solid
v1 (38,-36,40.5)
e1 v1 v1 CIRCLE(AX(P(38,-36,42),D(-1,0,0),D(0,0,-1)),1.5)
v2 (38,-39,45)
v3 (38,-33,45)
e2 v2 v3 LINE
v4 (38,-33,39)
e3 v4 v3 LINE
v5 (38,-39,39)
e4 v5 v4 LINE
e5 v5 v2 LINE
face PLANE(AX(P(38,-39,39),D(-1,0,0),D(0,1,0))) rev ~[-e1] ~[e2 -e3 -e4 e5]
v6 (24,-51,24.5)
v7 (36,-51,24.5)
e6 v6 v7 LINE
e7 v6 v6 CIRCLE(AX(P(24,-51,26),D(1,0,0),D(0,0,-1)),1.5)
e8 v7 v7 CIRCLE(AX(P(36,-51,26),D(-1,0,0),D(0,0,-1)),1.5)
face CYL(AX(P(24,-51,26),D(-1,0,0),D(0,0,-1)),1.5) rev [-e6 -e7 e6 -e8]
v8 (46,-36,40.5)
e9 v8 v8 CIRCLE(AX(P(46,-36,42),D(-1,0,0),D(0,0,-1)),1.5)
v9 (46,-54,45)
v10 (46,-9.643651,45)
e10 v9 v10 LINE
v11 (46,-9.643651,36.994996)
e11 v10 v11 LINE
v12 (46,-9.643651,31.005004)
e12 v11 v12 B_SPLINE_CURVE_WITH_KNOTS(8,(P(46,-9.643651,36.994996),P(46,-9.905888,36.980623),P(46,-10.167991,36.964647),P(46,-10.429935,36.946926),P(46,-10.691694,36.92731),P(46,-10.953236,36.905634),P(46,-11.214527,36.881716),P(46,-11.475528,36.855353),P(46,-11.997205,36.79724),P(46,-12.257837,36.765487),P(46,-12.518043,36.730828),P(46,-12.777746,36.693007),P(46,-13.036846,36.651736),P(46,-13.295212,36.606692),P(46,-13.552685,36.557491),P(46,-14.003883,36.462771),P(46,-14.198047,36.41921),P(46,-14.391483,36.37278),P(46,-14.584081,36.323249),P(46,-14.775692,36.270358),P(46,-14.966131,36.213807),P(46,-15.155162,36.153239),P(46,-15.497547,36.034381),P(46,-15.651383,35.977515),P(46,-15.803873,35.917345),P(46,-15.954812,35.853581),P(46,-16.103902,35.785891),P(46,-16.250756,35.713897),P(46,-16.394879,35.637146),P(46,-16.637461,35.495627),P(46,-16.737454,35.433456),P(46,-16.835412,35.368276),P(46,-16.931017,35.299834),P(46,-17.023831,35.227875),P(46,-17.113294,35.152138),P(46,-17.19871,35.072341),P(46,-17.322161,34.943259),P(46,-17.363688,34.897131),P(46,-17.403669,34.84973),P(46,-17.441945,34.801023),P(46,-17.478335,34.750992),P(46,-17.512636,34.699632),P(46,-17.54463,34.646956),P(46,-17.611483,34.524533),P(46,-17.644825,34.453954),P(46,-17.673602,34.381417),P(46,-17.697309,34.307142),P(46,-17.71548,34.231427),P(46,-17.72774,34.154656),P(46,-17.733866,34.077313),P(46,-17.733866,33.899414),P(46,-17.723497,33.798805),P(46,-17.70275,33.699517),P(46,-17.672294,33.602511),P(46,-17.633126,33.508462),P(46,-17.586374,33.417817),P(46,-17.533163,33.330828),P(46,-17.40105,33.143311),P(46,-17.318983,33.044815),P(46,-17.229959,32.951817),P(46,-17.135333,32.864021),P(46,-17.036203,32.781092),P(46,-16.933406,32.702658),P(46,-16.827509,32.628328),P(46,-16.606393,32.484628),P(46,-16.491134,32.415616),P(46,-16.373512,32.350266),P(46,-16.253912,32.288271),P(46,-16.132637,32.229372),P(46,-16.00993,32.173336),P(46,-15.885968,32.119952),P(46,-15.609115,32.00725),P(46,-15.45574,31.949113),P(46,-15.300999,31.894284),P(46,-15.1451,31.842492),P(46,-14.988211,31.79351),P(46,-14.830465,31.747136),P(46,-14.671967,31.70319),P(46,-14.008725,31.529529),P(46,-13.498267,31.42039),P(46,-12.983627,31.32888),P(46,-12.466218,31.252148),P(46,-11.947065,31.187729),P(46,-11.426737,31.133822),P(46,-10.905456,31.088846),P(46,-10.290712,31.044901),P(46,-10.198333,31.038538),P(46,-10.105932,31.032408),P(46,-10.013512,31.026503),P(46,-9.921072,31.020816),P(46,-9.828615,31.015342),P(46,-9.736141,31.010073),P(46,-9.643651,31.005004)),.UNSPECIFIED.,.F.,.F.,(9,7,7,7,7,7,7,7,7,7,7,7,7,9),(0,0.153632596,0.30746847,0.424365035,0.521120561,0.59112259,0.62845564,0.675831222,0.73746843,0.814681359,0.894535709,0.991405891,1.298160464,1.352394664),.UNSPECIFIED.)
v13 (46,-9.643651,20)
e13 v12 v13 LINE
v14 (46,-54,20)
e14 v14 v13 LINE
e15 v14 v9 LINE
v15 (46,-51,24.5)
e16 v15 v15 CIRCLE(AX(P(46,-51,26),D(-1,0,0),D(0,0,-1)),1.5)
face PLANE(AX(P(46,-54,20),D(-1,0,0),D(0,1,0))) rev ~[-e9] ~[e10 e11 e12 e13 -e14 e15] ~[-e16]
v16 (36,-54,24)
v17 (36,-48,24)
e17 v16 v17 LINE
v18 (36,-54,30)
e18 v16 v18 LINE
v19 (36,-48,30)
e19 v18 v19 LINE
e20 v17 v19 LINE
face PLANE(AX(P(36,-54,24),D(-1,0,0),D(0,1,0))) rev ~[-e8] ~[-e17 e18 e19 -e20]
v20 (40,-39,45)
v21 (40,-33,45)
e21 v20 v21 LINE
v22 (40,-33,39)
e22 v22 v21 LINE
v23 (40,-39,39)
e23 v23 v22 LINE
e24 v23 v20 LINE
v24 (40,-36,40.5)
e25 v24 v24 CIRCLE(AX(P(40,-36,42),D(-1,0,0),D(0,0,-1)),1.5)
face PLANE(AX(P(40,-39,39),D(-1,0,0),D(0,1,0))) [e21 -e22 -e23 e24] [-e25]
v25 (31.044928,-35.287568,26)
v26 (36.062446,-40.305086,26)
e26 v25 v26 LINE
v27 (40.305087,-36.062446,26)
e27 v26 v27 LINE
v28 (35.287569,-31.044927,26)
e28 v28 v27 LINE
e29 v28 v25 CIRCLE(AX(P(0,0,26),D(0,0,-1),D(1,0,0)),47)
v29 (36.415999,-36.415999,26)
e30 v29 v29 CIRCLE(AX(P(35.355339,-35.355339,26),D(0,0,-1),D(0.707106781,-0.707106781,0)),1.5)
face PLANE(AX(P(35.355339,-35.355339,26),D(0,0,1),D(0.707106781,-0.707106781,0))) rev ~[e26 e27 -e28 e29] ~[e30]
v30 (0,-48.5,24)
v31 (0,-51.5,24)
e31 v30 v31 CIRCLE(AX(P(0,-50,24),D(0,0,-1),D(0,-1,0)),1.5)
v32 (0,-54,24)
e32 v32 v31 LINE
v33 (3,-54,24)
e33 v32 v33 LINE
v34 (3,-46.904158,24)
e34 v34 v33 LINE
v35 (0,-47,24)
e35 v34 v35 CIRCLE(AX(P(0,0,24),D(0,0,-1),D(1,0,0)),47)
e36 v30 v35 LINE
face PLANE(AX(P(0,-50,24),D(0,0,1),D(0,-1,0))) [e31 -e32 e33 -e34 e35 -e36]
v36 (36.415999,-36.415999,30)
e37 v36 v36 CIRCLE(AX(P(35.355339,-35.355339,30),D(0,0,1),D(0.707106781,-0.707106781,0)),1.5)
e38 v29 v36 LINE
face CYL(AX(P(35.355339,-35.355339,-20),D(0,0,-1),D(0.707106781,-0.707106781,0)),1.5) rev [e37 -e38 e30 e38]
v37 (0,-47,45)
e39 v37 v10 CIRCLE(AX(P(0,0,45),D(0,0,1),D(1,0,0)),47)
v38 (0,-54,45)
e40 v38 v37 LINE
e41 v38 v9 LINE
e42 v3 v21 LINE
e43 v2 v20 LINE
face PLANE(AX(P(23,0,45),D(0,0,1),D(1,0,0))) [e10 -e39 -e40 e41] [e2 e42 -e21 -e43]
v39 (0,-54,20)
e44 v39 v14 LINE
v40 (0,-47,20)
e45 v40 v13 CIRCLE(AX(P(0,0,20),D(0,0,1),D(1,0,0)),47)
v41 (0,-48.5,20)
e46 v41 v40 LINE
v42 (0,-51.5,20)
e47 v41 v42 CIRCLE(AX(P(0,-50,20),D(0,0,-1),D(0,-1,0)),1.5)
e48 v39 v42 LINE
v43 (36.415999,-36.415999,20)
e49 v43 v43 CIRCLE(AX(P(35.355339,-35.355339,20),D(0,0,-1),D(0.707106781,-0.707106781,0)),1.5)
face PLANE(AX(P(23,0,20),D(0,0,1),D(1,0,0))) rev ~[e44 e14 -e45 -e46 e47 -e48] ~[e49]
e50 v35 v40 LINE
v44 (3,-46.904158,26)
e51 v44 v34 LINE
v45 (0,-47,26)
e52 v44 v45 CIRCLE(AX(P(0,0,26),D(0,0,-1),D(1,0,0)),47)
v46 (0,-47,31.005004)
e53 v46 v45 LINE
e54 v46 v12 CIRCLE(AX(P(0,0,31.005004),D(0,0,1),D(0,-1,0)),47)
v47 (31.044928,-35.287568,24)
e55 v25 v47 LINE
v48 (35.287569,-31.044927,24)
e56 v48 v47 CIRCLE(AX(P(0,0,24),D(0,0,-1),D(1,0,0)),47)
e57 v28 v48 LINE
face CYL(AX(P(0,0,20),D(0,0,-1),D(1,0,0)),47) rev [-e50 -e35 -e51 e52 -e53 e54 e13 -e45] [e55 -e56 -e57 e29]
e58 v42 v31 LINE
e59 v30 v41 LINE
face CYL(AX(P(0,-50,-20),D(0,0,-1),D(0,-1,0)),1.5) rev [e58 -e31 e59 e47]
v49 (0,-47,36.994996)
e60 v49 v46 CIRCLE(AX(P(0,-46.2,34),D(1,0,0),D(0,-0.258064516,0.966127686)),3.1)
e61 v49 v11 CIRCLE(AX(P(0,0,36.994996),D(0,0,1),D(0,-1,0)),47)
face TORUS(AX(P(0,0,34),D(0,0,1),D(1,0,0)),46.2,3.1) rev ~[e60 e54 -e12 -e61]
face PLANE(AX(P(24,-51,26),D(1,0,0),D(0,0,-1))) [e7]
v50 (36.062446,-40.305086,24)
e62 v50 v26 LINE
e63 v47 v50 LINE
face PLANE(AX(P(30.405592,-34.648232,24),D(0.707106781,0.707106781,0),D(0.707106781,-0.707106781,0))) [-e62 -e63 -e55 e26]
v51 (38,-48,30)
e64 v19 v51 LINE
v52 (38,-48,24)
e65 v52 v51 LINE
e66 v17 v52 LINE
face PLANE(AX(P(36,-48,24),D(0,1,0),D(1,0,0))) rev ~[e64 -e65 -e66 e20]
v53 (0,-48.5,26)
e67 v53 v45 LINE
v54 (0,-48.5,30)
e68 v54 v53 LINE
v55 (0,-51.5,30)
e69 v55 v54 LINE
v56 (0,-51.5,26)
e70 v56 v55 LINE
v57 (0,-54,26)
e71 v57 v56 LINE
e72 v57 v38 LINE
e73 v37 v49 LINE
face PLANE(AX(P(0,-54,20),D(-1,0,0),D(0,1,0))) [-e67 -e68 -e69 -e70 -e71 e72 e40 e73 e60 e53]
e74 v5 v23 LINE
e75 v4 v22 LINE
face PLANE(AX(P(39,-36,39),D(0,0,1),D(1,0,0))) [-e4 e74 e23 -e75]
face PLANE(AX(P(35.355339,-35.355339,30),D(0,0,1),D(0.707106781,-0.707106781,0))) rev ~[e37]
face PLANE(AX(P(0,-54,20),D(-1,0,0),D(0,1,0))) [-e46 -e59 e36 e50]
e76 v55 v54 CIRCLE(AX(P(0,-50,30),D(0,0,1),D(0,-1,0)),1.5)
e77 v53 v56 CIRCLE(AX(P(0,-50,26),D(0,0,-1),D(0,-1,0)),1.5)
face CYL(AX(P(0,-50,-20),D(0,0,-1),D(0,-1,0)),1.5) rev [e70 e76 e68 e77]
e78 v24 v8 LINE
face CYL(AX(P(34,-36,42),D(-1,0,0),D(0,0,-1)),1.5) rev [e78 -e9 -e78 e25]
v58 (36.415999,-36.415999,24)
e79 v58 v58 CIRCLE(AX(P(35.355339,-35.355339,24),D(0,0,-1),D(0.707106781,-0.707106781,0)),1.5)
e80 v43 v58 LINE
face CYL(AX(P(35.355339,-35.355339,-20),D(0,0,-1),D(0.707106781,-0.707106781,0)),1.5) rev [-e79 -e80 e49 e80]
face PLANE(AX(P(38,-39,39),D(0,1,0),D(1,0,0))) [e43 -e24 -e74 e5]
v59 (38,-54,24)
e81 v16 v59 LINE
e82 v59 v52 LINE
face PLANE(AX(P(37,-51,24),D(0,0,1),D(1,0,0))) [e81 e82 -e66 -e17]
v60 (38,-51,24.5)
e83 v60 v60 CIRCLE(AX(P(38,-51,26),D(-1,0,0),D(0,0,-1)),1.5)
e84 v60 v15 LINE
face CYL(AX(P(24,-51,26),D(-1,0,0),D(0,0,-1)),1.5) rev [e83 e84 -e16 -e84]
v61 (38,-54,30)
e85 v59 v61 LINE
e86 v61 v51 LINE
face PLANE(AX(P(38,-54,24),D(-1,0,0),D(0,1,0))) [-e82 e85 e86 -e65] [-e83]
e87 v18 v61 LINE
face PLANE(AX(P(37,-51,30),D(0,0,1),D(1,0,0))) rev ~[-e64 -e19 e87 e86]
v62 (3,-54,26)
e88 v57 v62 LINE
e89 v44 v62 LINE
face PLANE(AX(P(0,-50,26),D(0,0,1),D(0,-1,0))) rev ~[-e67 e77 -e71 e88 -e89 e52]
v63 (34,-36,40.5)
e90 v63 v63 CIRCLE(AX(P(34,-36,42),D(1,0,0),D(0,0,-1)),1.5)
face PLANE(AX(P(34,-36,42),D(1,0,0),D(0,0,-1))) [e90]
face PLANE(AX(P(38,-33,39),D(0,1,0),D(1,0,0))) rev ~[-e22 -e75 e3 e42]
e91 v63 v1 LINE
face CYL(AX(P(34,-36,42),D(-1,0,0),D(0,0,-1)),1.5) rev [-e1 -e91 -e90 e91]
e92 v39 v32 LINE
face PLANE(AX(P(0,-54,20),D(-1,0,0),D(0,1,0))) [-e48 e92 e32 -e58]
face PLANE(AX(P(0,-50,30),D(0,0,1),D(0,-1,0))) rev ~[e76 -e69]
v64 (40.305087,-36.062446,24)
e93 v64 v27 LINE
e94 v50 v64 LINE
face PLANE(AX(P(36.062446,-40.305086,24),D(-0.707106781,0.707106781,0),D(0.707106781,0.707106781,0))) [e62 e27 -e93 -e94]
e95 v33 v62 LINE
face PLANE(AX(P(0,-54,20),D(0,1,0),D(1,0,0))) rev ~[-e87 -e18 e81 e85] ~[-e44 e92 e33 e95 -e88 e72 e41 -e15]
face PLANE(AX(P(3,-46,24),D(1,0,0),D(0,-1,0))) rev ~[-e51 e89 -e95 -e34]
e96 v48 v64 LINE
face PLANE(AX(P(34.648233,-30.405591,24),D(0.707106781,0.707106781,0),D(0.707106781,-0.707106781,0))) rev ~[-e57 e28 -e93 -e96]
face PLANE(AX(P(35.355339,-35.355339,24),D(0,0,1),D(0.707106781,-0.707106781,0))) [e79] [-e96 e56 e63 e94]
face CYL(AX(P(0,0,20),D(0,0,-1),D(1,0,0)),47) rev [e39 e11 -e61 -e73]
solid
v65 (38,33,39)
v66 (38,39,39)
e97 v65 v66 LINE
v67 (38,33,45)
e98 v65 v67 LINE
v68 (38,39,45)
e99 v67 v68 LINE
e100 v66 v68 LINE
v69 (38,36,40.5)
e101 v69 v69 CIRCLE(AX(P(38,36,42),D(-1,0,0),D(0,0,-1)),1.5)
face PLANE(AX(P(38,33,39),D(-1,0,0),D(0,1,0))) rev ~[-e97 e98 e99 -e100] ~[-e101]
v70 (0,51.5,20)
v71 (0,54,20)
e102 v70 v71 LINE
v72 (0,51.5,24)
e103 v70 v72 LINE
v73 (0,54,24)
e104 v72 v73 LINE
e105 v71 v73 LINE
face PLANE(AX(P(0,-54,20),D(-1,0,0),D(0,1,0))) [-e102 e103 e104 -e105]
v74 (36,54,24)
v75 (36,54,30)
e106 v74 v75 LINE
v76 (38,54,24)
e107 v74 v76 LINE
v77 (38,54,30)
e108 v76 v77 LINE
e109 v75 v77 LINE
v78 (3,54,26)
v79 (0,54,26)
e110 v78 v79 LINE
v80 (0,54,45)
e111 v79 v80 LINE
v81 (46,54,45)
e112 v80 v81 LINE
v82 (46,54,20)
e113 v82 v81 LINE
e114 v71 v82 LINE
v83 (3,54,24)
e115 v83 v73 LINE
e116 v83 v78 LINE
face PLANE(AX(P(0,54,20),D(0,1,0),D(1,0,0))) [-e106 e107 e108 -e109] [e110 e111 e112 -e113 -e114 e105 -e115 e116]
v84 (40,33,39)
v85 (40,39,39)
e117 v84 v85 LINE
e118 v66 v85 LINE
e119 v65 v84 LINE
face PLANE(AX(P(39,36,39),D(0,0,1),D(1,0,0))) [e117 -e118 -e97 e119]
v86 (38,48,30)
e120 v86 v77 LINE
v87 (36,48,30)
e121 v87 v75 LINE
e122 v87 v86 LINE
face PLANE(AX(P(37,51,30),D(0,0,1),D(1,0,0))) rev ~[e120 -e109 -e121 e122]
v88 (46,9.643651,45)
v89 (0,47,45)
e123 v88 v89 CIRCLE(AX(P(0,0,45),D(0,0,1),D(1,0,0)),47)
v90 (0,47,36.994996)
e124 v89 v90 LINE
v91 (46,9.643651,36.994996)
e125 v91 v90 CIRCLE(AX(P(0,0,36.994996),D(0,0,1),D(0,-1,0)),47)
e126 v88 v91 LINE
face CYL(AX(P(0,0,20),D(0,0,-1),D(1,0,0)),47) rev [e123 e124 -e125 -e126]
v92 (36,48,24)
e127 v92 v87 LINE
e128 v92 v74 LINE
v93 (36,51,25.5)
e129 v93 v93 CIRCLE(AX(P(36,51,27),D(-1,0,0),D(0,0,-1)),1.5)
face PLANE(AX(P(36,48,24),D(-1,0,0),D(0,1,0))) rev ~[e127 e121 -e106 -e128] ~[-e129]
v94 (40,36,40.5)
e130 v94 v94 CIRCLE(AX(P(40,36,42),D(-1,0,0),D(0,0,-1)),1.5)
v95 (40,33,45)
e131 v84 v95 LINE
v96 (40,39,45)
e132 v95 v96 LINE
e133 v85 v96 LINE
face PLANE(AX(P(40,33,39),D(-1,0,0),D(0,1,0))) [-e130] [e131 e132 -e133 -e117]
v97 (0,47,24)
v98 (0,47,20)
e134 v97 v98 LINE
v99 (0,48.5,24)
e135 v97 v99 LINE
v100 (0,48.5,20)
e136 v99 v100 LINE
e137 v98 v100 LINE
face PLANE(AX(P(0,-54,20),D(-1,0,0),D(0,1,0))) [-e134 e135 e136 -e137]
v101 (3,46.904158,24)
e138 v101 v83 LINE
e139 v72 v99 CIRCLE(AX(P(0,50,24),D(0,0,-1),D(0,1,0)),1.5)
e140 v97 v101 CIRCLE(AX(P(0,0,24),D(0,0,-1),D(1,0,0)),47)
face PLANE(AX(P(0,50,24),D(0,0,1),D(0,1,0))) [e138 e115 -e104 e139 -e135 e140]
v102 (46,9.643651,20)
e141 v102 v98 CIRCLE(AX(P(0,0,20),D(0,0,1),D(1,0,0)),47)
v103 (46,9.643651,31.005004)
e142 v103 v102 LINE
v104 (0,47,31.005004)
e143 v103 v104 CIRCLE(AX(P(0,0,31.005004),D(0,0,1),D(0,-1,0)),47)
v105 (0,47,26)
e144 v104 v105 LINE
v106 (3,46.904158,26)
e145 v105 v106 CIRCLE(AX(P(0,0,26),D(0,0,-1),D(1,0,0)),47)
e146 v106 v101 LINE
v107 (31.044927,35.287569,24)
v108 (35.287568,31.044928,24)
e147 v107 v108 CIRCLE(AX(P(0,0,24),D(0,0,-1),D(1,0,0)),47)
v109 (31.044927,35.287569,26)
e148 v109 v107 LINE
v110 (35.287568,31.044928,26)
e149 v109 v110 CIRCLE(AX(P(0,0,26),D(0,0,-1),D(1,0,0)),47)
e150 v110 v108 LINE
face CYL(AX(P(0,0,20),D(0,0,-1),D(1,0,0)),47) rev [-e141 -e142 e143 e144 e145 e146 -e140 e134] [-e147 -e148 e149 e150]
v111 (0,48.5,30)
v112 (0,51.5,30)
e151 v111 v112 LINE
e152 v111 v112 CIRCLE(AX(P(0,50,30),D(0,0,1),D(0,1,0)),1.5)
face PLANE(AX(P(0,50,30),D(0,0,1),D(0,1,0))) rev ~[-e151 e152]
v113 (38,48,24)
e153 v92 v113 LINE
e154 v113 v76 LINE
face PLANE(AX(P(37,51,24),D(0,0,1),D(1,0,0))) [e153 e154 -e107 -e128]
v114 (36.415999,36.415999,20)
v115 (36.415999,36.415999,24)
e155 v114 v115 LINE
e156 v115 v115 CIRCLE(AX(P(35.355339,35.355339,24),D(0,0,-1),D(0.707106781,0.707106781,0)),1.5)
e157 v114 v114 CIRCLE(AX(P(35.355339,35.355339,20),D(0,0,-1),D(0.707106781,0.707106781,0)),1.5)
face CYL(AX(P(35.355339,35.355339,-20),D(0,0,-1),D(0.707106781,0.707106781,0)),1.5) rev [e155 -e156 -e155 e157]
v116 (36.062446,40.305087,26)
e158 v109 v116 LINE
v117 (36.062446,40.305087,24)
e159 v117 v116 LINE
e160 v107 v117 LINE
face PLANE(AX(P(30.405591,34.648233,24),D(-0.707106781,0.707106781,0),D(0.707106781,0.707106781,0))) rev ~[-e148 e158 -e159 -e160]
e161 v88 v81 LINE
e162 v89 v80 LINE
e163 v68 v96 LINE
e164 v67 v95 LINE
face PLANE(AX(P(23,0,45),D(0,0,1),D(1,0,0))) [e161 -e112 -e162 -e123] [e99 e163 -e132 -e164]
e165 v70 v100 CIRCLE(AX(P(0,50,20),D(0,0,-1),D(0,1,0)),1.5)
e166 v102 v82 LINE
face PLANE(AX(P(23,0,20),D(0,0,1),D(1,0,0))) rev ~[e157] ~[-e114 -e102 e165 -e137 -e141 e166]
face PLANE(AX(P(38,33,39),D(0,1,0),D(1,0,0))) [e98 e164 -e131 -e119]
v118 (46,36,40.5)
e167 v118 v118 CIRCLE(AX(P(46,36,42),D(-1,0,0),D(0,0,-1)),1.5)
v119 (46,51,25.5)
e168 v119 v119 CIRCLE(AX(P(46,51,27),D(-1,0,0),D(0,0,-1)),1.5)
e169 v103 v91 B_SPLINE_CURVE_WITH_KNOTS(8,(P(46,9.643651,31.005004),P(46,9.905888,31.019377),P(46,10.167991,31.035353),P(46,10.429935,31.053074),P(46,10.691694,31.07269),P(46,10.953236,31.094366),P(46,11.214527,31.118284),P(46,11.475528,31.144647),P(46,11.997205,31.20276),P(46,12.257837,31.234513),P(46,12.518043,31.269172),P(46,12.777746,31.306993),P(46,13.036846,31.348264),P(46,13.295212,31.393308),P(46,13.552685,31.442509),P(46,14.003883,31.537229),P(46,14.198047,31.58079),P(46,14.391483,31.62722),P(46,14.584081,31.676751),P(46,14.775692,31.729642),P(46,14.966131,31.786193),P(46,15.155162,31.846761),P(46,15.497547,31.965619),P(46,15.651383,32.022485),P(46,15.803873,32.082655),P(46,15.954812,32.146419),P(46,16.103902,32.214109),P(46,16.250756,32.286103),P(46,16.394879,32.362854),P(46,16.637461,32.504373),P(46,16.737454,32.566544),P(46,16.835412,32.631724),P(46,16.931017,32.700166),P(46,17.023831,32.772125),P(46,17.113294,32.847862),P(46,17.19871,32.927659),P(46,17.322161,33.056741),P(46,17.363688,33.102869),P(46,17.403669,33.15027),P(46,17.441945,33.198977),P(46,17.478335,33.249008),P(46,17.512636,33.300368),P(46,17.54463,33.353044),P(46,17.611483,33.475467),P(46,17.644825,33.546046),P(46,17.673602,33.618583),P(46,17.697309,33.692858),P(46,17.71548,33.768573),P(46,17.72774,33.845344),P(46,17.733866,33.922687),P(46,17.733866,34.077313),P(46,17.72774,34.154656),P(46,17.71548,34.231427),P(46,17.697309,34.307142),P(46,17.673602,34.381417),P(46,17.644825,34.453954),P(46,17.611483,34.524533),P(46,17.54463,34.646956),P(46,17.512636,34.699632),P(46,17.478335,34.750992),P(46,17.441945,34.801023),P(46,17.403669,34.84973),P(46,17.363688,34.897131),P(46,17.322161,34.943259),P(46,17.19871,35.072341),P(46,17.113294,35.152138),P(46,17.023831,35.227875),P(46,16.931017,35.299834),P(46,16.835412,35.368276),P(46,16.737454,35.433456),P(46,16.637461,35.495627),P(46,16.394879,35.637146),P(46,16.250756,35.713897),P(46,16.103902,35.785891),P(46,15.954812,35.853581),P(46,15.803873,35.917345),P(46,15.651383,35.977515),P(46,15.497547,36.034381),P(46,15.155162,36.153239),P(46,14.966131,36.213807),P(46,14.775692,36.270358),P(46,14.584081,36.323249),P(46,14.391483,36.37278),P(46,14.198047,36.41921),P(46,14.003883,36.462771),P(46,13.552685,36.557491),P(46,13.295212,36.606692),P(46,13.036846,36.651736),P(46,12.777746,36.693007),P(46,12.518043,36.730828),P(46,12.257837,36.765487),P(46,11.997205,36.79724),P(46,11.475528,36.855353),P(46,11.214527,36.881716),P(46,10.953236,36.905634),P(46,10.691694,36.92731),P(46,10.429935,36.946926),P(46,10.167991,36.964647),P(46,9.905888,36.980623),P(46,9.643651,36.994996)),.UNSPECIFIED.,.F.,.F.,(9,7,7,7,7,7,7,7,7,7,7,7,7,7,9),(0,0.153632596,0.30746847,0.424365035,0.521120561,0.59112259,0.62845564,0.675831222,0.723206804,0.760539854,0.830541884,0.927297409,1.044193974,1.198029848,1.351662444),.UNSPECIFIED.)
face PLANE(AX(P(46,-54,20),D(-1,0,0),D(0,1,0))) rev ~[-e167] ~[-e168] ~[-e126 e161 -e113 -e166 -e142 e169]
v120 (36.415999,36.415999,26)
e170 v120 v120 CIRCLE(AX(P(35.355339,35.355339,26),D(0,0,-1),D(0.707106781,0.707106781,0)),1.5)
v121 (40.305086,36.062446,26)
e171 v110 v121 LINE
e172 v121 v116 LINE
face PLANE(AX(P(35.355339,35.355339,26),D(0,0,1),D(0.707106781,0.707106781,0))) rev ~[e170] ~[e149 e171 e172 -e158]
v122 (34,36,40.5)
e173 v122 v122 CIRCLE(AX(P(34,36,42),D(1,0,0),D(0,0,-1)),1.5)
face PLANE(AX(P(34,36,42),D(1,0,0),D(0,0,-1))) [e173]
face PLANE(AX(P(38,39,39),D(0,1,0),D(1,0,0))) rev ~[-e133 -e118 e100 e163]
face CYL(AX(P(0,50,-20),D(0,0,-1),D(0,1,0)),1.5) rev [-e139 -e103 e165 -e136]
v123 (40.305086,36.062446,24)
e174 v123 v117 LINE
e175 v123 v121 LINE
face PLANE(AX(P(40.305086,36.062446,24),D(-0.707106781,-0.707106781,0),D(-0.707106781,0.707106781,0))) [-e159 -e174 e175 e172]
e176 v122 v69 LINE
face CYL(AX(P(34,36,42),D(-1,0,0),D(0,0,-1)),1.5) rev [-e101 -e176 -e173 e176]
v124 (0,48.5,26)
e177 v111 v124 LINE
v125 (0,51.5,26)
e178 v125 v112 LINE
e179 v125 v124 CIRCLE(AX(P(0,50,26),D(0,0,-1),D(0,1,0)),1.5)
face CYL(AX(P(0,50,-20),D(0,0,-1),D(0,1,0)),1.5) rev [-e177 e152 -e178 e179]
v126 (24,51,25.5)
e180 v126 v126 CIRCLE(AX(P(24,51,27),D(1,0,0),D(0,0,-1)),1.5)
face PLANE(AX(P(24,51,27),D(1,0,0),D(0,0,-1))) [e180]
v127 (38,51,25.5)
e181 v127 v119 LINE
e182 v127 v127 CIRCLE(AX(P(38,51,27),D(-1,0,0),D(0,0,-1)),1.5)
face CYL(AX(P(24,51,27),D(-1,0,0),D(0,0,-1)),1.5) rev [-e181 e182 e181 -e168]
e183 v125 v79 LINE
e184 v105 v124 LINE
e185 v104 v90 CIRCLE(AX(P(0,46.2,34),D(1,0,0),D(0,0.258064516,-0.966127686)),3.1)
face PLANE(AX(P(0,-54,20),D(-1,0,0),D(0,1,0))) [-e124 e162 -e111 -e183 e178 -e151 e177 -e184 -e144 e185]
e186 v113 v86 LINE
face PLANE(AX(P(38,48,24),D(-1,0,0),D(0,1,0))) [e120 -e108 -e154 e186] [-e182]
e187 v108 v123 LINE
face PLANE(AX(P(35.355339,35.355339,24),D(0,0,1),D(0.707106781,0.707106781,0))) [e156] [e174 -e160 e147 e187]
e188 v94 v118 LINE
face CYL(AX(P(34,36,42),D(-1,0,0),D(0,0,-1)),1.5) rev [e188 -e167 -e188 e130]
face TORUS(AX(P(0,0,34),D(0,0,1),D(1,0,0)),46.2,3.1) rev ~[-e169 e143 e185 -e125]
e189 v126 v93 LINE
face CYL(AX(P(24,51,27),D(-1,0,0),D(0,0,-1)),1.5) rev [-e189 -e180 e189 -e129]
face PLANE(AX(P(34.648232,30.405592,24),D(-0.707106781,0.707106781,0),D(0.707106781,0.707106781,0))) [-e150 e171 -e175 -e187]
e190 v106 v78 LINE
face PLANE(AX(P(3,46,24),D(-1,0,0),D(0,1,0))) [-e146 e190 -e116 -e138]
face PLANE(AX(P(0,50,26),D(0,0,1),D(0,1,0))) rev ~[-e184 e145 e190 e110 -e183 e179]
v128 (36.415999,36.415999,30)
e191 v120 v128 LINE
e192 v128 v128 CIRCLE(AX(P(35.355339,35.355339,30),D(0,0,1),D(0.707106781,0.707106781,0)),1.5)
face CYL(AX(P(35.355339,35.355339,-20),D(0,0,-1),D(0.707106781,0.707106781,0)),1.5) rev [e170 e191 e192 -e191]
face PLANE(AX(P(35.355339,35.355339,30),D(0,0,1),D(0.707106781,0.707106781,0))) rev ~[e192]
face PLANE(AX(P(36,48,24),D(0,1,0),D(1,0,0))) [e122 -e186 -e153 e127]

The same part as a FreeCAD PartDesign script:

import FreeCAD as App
import Part
import Sketcher
Q = App.Units.Quantity


def add_polygon(sketch, points):
    """Adds a closed chain of lines whose ends are joined by coincident constraints."""
    first, n = sketch.GeometryCount, len(points)
    for a, b in zip(points, points[1:] + points[:1]):
        sketch.addGeometry(Part.LineSegment(App.Vector(*a, 0), App.Vector(*b, 0)), False)
    for i in range(n):
        sketch.addConstraint(Sketcher.Constraint("Coincident", first + i, 2, first + (i + 1) % n, 1))

doc = App.newDocument("Part")
body = doc.addObject("PartDesign::Body", "Body")

sketch1 = doc.addObject("Sketcher::SketchObject", "Sketch")
body.addObject(sketch1)
sketch1.AttachmentSupport = (doc.XY_Plane, [""])
sketch1.MapMode = "FlatFace"
sketch1.AttachmentOffset = App.Placement(App.Vector(0, 0, 24), App.Rotation())
add_polygon(sketch1, [(36, -48), (36, -54), (38, -54), (38, -48)])
sketch1.addConstraint([
    Sketcher.Constraint("Vertical", 0),
    Sketcher.Constraint("Horizontal", 1),
    Sketcher.Constraint("Vertical", 2),
    Sketcher.Constraint("Horizontal", 3),
    Sketcher.Constraint("DistanceX", 1, 1, 1, 2, Q("2 mm")),
    Sketcher.Constraint("DistanceY", 0, 2, 0, 1, Q("6 mm")),
    Sketcher.Constraint("DistanceX", -1, 1, 0, 2, Q("36 mm")),
    Sketcher.Constraint("DistanceY", 0, 2, -1, 1, Q("54 mm")),
])
pad1 = doc.addObject("PartDesign::Pad", "Pad")
body.addObject(pad1)
pad1.Profile = sketch1
pad1.Length = 6
body2 = doc.addObject("PartDesign::Body", "Body001")

sketch2 = doc.addObject("Sketcher::SketchObject", "Sketch001")
body2.addObject(sketch2)
sketch2.AttachmentSupport = (doc.getObject("XY_Plane001"), [""])
sketch2.MapMode = "FlatFace"
sketch2.AttachmentOffset = App.Placement(App.Vector(0, 0, 39), App.Rotation())
add_polygon(sketch2, [(38, 39), (38, 33), (40, 33), (40, 39)])
sketch2.addConstraint([
    Sketcher.Constraint("Vertical", 0),
    Sketcher.Constraint("Horizontal", 1),
    Sketcher.Constraint("Vertical", 2),
    Sketcher.Constraint("Horizontal", 3),
    Sketcher.Constraint("DistanceX", 1, 1, 1, 2, Q("2 mm")),
    Sketcher.Constraint("DistanceY", 0, 2, 0, 1, Q("6 mm")),
    Sketcher.Constraint("DistanceX", -1, 1, 0, 2, Q("38 mm")),
    Sketcher.Constraint("DistanceY", -1, 1, 0, 2, Q("33 mm")),
])
pad2 = doc.addObject("PartDesign::Pad", "Pad001")
body2.addObject(pad2)
pad2.Profile = sketch2
pad2.Length = 6
body3 = doc.addObject("PartDesign::Body", "Body002")

sketch3 = doc.addObject("Sketcher::SketchObject", "Sketch002")
body3.addObject(sketch3)
sketch3.AttachmentSupport = (doc.getObject("XY_Plane002"), [""])
sketch3.MapMode = "FlatFace"
sketch3.AttachmentOffset = App.Placement(App.Vector(0, 0, 39), App.Rotation())
add_polygon(sketch3, [(38, -33), (38, -39), (40, -39), (40, -33)])
sketch3.addConstraint([
    Sketcher.Constraint("Vertical", 0),
    Sketcher.Constraint("Horizontal", 1),
    Sketcher.Constraint("Vertical", 2),
    Sketcher.Constraint("Horizontal", 3),
    Sketcher.Constraint("DistanceX", 1, 1, 1, 2, Q("2 mm")),
    Sketcher.Constraint("DistanceY", 0, 2, 0, 1, Q("6 mm")),
    Sketcher.Constraint("DistanceX", -1, 1, 0, 2, Q("38 mm")),
    Sketcher.Constraint("DistanceY", 0, 2, -1, 1, Q("39 mm")),
])
pad3 = doc.addObject("PartDesign::Pad", "Pad002")
body3.addObject(pad3)
pad3.Profile = sketch3
pad3.Length = 6
body4 = doc.addObject("PartDesign::Body", "Body003")
body4.AllowCompound = True

sketch4 = doc.addObject("Sketcher::SketchObject", "Sketch003")
body4.addObject(sketch4)
sketch4.AttachmentSupport = (doc.getObject("XY_Plane003"), [""])
sketch4.MapMode = "FlatFace"
sketch4.AttachmentOffset = App.Placement(App.Vector(0, 0, 24), App.Rotation())
add_polygon(sketch4, [(36, 54), (36, 48), (38, 48), (38, 54)])
sketch4.addConstraint([
    Sketcher.Constraint("Vertical", 0),
    Sketcher.Constraint("Horizontal", 1),
    Sketcher.Constraint("Vertical", 2),
    Sketcher.Constraint("Horizontal", 3),
    Sketcher.Constraint("DistanceX", 1, 1, 1, 2, Q("2 mm")),
    Sketcher.Constraint("DistanceY", 0, 2, 0, 1, Q("6 mm")),
    Sketcher.Constraint("DistanceX", -1, 1, 0, 2, Q("36 mm")),
    Sketcher.Constraint("DistanceY", -1, 1, 0, 2, Q("48 mm")),
])
pad4 = doc.addObject("PartDesign::Pad", "Pad003")
body4.addObject(pad4)
pad4.Profile = sketch4
pad4.Length = 6
doc.recompute()

boolean = doc.addObject("PartDesign::Boolean", "Boolean")
body4.addObject(boolean)
boolean.Type = "Fuse"
boolean.addObjects([body])
doc.recompute()

boolean2 = doc.addObject("PartDesign::Boolean", "Boolean001")
body4.addObject(boolean2)
boolean2.Type = "Fuse"
boolean2.addObjects([body2])
doc.recompute()

boolean3 = doc.addObject("PartDesign::Boolean", "Boolean002")
body4.addObject(boolean3)
boolean3.Type = "Fuse"
boolean3.addObjects([body3])
body5 = doc.addObject("PartDesign::Body", "Body004")

sketch5 = doc.addObject("Sketcher::SketchObject", "Sketch004")
body5.addObject(sketch5)
sketch5.AttachmentSupport = (doc.getObject("YZ_Plane004"), [""])
sketch5.MapMode = "FlatFace"
sketch5.AttachmentOffset = App.Placement(App.Vector(0, 0, 24), App.Rotation())
sketch5.addGeometry(Part.Circle(App.Vector(-51, 26, 0), App.Vector(0, 0, 1), 1.5), False)
sketch5.addConstraint([
    Sketcher.Constraint("Diameter", 0, Q("3 mm")),
    Sketcher.Constraint("DistanceX", 0, 3, -1, 1, Q("51 mm")),
    Sketcher.Constraint("DistanceY", -1, 1, 0, 3, Q("26 mm")),
])
pad5 = doc.addObject("PartDesign::Pad", "Pad004")
body5.addObject(pad5)
pad5.Profile = sketch5
pad5.Length = 100
body6 = doc.addObject("PartDesign::Body", "Body005")

sketch6 = doc.addObject("Sketcher::SketchObject", "Sketch005")
body6.addObject(sketch6)
sketch6.AttachmentSupport = (doc.getObject("YZ_Plane005"), [""])
sketch6.MapMode = "FlatFace"
sketch6.AttachmentOffset = App.Placement(App.Vector(0, 0, 34), App.Rotation())
sketch6.addGeometry(Part.Circle(App.Vector(36, 42, 0), App.Vector(0, 0, 1), 1.5), False)
sketch6.addConstraint([
    Sketcher.Constraint("Diameter", 0, Q("3 mm")),
    Sketcher.Constraint("DistanceX", -1, 1, 0, 3, Q("36 mm")),
    Sketcher.Constraint("DistanceY", -1, 1, 0, 3, Q("42 mm")),
])
pad6 = doc.addObject("PartDesign::Pad", "Pad005")
body6.addObject(pad6)
pad6.Profile = sketch6
pad6.Length = 100
body7 = doc.addObject("PartDesign::Body", "Body006")

sketch7 = doc.addObject("Sketcher::SketchObject", "Sketch006")
body7.addObject(sketch7)
sketch7.AttachmentSupport = (doc.getObject("YZ_Plane006"), [""])
sketch7.MapMode = "FlatFace"
sketch7.AttachmentOffset = App.Placement(App.Vector(0, 0, 34), App.Rotation())
sketch7.addGeometry(Part.Circle(App.Vector(-36, 42, 0), App.Vector(0, 0, 1), 1.5), False)
sketch7.addConstraint([
    Sketcher.Constraint("Diameter", 0, Q("3 mm")),
    Sketcher.Constraint("DistanceX", 0, 3, -1, 1, Q("36 mm")),
    Sketcher.Constraint("DistanceY", -1, 1, 0, 3, Q("42 mm")),
])
pad7 = doc.addObject("PartDesign::Pad", "Pad006")
body7.addObject(pad7)
pad7.Profile = sketch7
pad7.Length = 100
body8 = doc.addObject("PartDesign::Body", "Body007")
body8.AllowCompound = True

sketch8 = doc.addObject("Sketcher::SketchObject", "Sketch007")
body8.addObject(sketch8)
sketch8.AttachmentSupport = (doc.getObject("YZ_Plane007"), [""])
sketch8.MapMode = "FlatFace"
sketch8.AttachmentOffset = App.Placement(App.Vector(0, 0, 24), App.Rotation())
sketch8.addGeometry(Part.Circle(App.Vector(51, 27, 0), App.Vector(0, 0, 1), 1.5), False)
sketch8.addConstraint([
    Sketcher.Constraint("Diameter", 0, Q("3 mm")),
    Sketcher.Constraint("DistanceX", -1, 1, 0, 3, Q("51 mm")),
    Sketcher.Constraint("DistanceY", -1, 1, 0, 3, Q("27 mm")),
])
pad8 = doc.addObject("PartDesign::Pad", "Pad007")
body8.addObject(pad8)
pad8.Profile = sketch8
pad8.Length = 100
doc.recompute()

boolean4 = doc.addObject("PartDesign::Boolean", "Boolean003")
body8.addObject(boolean4)
boolean4.Type = "Fuse"
boolean4.addObjects([body5])
doc.recompute()

boolean5 = doc.addObject("PartDesign::Boolean", "Boolean004")
body8.addObject(boolean5)
boolean5.Type = "Fuse"
boolean5.addObjects([body6])
doc.recompute()

boolean6 = doc.addObject("PartDesign::Boolean", "Boolean005")
body8.addObject(boolean6)
boolean6.Type = "Fuse"
boolean6.addObjects([body7])
body9 = doc.addObject("PartDesign::Body", "Body008")

sketch9 = doc.addObject("Sketcher::SketchObject", "Sketch008")
body9.addObject(sketch9)
sketch9.AttachmentSupport = (doc.getObject("XY_Plane008"), [""])
sketch9.MapMode = "FlatFace"
add_polygon(sketch9, [(0, 6), (0, 0), (8, 0), (8, 6)])
sketch9.addConstraint([
    Sketcher.Constraint("Vertical", 0),
    Sketcher.Constraint("Horizontal", 1),
    Sketcher.Constraint("Vertical", 2),
    Sketcher.Constraint("Horizontal", 3),
    Sketcher.Constraint("Coincident", 0, 2, -1, 1),
    Sketcher.Constraint("DistanceX", 1, 1, 1, 2, Q("8 mm")),
    Sketcher.Constraint("DistanceY", 0, 2, 0, 1, Q("6 mm")),
])
pad9 = doc.addObject("PartDesign::Pad", "Pad008")
body9.addObject(pad9)
pad9.Profile = sketch9
pad9.Length = 2
body10 = doc.addObject("PartDesign::Body", "Body009")
doc.recompute()

body9.Placement = App.Placement(App.Vector(34.648232, 30.405592, 23), App.Rotation(App.Vector(0, 0, 1), 45))
boolean7 = doc.addObject("PartDesign::Boolean", "Boolean006")
body10.addObject(boolean7)
boolean7.Type = "Fuse"
boolean7.addObjects([body9])
body11 = doc.addObject("PartDesign::Body", "Body010")

sketch10 = doc.addObject("Sketcher::SketchObject", "Sketch009")
body11.addObject(sketch10)
sketch10.AttachmentSupport = (doc.getObject("XY_Plane010"), [""])
sketch10.MapMode = "FlatFace"
sketch10.AttachmentOffset = App.Placement(App.Vector(0, 0, 23), App.Rotation())
add_polygon(sketch10, [(-3, 46), (3, 46), (3, 54), (-3, 54)])
sketch10.addConstraint([
    Sketcher.Constraint("Horizontal", 0),
    Sketcher.Constraint("Vertical", 1),
    Sketcher.Constraint("Horizontal", 2),
    Sketcher.Constraint("Vertical", 3),
    Sketcher.Constraint("DistanceX", 0, 1, 0, 2, Q("6 mm")),
    Sketcher.Constraint("DistanceY", 1, 1, 1, 2, Q("8 mm")),
    Sketcher.Constraint("DistanceX", -1, 1, 0, 2, Q("3 mm")),
    Sketcher.Constraint("DistanceY", -1, 1, 0, 2, Q("46 mm")),
])
pad10 = doc.addObject("PartDesign::Pad", "Pad009")
body11.addObject(pad10)
pad10.Profile = sketch10
pad10.Length = 2
body12 = doc.addObject("PartDesign::Body", "Body011")

sketch11 = doc.addObject("Sketcher::SketchObject", "Sketch010")
body12.addObject(sketch11)
sketch11.AttachmentSupport = (doc.getObject("XY_Plane011"), [""])
sketch11.MapMode = "FlatFace"
add_polygon(sketch11, [(0, 6), (0, 0), (8, 0), (8, 6)])
sketch11.addConstraint([
    Sketcher.Constraint("Vertical", 0),
    Sketcher.Constraint("Horizontal", 1),
    Sketcher.Constraint("Vertical", 2),
    Sketcher.Constraint("Horizontal", 3),
    Sketcher.Constraint("Coincident", 0, 2, -1, 1),
    Sketcher.Constraint("DistanceX", 1, 1, 1, 2, Q("8 mm")),
    Sketcher.Constraint("DistanceY", 0, 2, 0, 1, Q("6 mm")),
])
pad11 = doc.addObject("PartDesign::Pad", "Pad010")
body12.addObject(pad11)
pad11.Profile = sketch11
pad11.Length = 2
body13 = doc.addObject("PartDesign::Body", "Body012")
doc.recompute()

body12.Placement = App.Placement(App.Vector(-30.405592, 34.648232, 23), App.Rotation(App.Vector(0, 0, 1), 135))
boolean8 = doc.addObject("PartDesign::Boolean", "Boolean007")
body13.addObject(boolean8)
boolean8.Type = "Fuse"
boolean8.addObjects([body12])
body14 = doc.addObject("PartDesign::Body", "Body013")

sketch12 = doc.addObject("Sketcher::SketchObject", "Sketch011")
body14.addObject(sketch12)
sketch12.AttachmentSupport = (doc.getObject("XY_Plane013"), [""])
sketch12.MapMode = "FlatFace"
sketch12.AttachmentOffset = App.Placement(App.Vector(0, 0, 23), App.Rotation())
add_polygon(sketch12, [(-46, -3), (-46, 3), (-54, 3), (-54, -3)])
sketch12.addConstraint([
    Sketcher.Constraint("Vertical", 0),
    Sketcher.Constraint("Horizontal", 1),
    Sketcher.Constraint("Vertical", 2),
    Sketcher.Constraint("Horizontal", 3),
    Sketcher.Constraint("DistanceX", 1, 2, 1, 1, Q("8 mm")),
    Sketcher.Constraint("DistanceY", 0, 1, 0, 2, Q("6 mm")),
    Sketcher.Constraint("DistanceX", 0, 2, -1, 1, Q("46 mm")),
    Sketcher.Constraint("DistanceY", -1, 1, 0, 2, Q("3 mm")),
])
pad12 = doc.addObject("PartDesign::Pad", "Pad011")
body14.addObject(pad12)
pad12.Profile = sketch12
pad12.Length = 2
body15 = doc.addObject("PartDesign::Body", "Body014")

sketch13 = doc.addObject("Sketcher::SketchObject", "Sketch012")
body15.addObject(sketch13)
sketch13.AttachmentSupport = (doc.getObject("XY_Plane014"), [""])
sketch13.MapMode = "FlatFace"
add_polygon(sketch13, [(0, 6), (0, 0), (8, 0), (8, 6)])
sketch13.addConstraint([
    Sketcher.Constraint("Vertical", 0),
    Sketcher.Constraint("Horizontal", 1),
    Sketcher.Constraint("Vertical", 2),
    Sketcher.Constraint("Horizontal", 3),
    Sketcher.Constraint("Coincident", 0, 2, -1, 1),
    Sketcher.Constraint("DistanceX", 1, 1, 1, 2, Q("8 mm")),
    Sketcher.Constraint("DistanceY", 0, 2, 0, 1, Q("6 mm")),
])
pad13 = doc.addObject("PartDesign::Pad", "Pad012")
body15.addObject(pad13)
pad13.Profile = sketch13
pad13.Length = 2
body16 = doc.addObject("PartDesign::Body", "Body015")
doc.recompute()

body15.Placement = App.Placement(App.Vector(-34.648232, -30.405592, 23), App.Rotation(App.Vector(0, 0, 1), 225))
boolean9 = doc.addObject("PartDesign::Boolean", "Boolean008")
body16.addObject(boolean9)
boolean9.Type = "Fuse"
boolean9.addObjects([body15])
body17 = doc.addObject("PartDesign::Body", "Body016")

sketch14 = doc.addObject("Sketcher::SketchObject", "Sketch013")
body17.addObject(sketch14)
sketch14.AttachmentSupport = (doc.getObject("XY_Plane016"), [""])
sketch14.MapMode = "FlatFace"
sketch14.AttachmentOffset = App.Placement(App.Vector(0, 0, 23), App.Rotation())
add_polygon(sketch14, [(3, -46), (-3, -46), (-3, -54), (3, -54)])
sketch14.addConstraint([
    Sketcher.Constraint("Horizontal", 0),
    Sketcher.Constraint("Vertical", 1),
    Sketcher.Constraint("Horizontal", 2),
    Sketcher.Constraint("Vertical", 3),
    Sketcher.Constraint("DistanceX", 0, 2, 0, 1, Q("6 mm")),
    Sketcher.Constraint("DistanceY", 1, 2, 1, 1, Q("8 mm")),
    Sketcher.Constraint("DistanceX", 0, 2, -1, 1, Q("3 mm")),
    Sketcher.Constraint("DistanceY", 0, 2, -1, 1, Q("46 mm")),
])
pad14 = doc.addObject("PartDesign::Pad", "Pad013")
body17.addObject(pad14)
pad14.Profile = sketch14
pad14.Length = 2
body18 = doc.addObject("PartDesign::Body", "Body017")

sketch15 = doc.addObject("Sketcher::SketchObject", "Sketch014")
body18.addObject(sketch15)
sketch15.AttachmentSupport = (doc.getObject("XY_Plane017"), [""])
sketch15.MapMode = "FlatFace"
add_polygon(sketch15, [(0, 6), (0, 0), (8, 0), (8, 6)])
sketch15.addConstraint([
    Sketcher.Constraint("Vertical", 0),
    Sketcher.Constraint("Horizontal", 1),
    Sketcher.Constraint("Vertical", 2),
    Sketcher.Constraint("Horizontal", 3),
    Sketcher.Constraint("Coincident", 0, 2, -1, 1),
    Sketcher.Constraint("DistanceX", 1, 1, 1, 2, Q("8 mm")),
    Sketcher.Constraint("DistanceY", 0, 2, 0, 1, Q("6 mm")),
])
pad15 = doc.addObject("PartDesign::Pad", "Pad014")
body18.addObject(pad15)
pad15.Profile = sketch15
pad15.Length = 2
body19 = doc.addObject("PartDesign::Body", "Body018")
doc.recompute()

body18.Placement = App.Placement(App.Vector(30.405592, -34.648232, 23), App.Rotation(App.Vector(0, 0, -1), 45))
boolean10 = doc.addObject("PartDesign::Boolean", "Boolean009")
body19.addObject(boolean10)
boolean10.Type = "Fuse"
boolean10.addObjects([body18])
body20 = doc.addObject("PartDesign::Body", "Body019")
body20.AllowCompound = True

sketch16 = doc.addObject("Sketcher::SketchObject", "Sketch015")
body20.addObject(sketch16)
sketch16.AttachmentSupport = (doc.getObject("XY_Plane019"), [""])
sketch16.MapMode = "FlatFace"
sketch16.AttachmentOffset = App.Placement(App.Vector(0, 0, 23), App.Rotation())
add_polygon(sketch16, [(46, 3), (46, -3), (54, -3), (54, 3)])
sketch16.addConstraint([
    Sketcher.Constraint("Vertical", 0),
    Sketcher.Constraint("Horizontal", 1),
    Sketcher.Constraint("Vertical", 2),
    Sketcher.Constraint("Horizontal", 3),
    Sketcher.Constraint("DistanceX", 1, 1, 1, 2, Q("8 mm")),
    Sketcher.Constraint("DistanceY", 0, 2, 0, 1, Q("6 mm")),
    Sketcher.Constraint("DistanceX", -1, 1, 0, 2, Q("46 mm")),
    Sketcher.Constraint("DistanceY", 0, 2, -1, 1, Q("3 mm")),
])
pad16 = doc.addObject("PartDesign::Pad", "Pad015")
body20.addObject(pad16)
pad16.Profile = sketch16
pad16.Length = 2
doc.recompute()

boolean11 = doc.addObject("PartDesign::Boolean", "Boolean010")
body20.addObject(boolean11)
boolean11.Type = "Fuse"
boolean11.addObjects([body10])
doc.recompute()

boolean12 = doc.addObject("PartDesign::Boolean", "Boolean011")
body20.addObject(boolean12)
boolean12.Type = "Fuse"
boolean12.addObjects([body11])
doc.recompute()

boolean13 = doc.addObject("PartDesign::Boolean", "Boolean012")
body20.addObject(boolean13)
boolean13.Type = "Fuse"
boolean13.addObjects([body13])
doc.recompute()

boolean14 = doc.addObject("PartDesign::Boolean", "Boolean013")
body20.addObject(boolean14)
boolean14.Type = "Fuse"
boolean14.addObjects([body14])
doc.recompute()

boolean15 = doc.addObject("PartDesign::Boolean", "Boolean014")
body20.addObject(boolean15)
boolean15.Type = "Fuse"
boolean15.addObjects([body16])
doc.recompute()

boolean16 = doc.addObject("PartDesign::Boolean", "Boolean015")
body20.addObject(boolean16)
boolean16.Type = "Fuse"
boolean16.addObjects([body17])
doc.recompute()

boolean17 = doc.addObject("PartDesign::Boolean", "Boolean016")
body20.addObject(boolean17)
boolean17.Type = "Fuse"
boolean17.addObjects([body19])
body21 = doc.addObject("PartDesign::Body", "Body020")
body21.AllowCompound = True
doc.recompute()

body20.Placement = App.Placement(App.Vector(0, 0, 1), App.Rotation(App.Vector(0, 0, 1), 0))
boolean18 = doc.addObject("PartDesign::Boolean", "Boolean017")
body21.addObject(boolean18)
boolean18.Type = "Fuse"
boolean18.addObjects([body20])
body22 = doc.addObject("PartDesign::Body", "Body021")

sketch17 = doc.addObject("Sketcher::SketchObject", "Sketch016")
body22.addObject(sketch17)
sketch17.AttachmentSupport = (doc.getObject("XY_Plane021"), [""])
sketch17.MapMode = "FlatFace"
sketch17.addGeometry(Part.Circle(App.Vector(0, 0, 0), App.Vector(0, 0, 1), 1.5), False)
sketch17.addConstraint([
    Sketcher.Constraint("Coincident", 0, 3, -1, 1),
    Sketcher.Constraint("Diameter", 0, Q("3 mm")),
])
pad17 = doc.addObject("PartDesign::Pad", "Pad016")
body22.addObject(pad17)
pad17.Profile = sketch17
pad17.Length = 50
body23 = doc.addObject("PartDesign::Body", "Body022")
doc.recompute()

body22.Placement = App.Placement(App.Vector(35.355339, 35.355339, -15), App.Rotation(App.Vector(0, 0, 1), 45))
boolean19 = doc.addObject("PartDesign::Boolean", "Boolean018")
body23.addObject(boolean19)
boolean19.Type = "Fuse"
boolean19.addObjects([body22])
body24 = doc.addObject("PartDesign::Body", "Body023")

sketch18 = doc.addObject("Sketcher::SketchObject", "Sketch017")
body24.addObject(sketch18)
sketch18.AttachmentSupport = (doc.getObject("XY_Plane023"), [""])
sketch18.MapMode = "FlatFace"
sketch18.AttachmentOffset = App.Placement(App.Vector(0, 0, -15), App.Rotation())
sketch18.addGeometry(Part.Circle(App.Vector(0, 50, 0), App.Vector(0, 0, 1), 1.5), False)
sketch18.addConstraint([
    Sketcher.Constraint("PointOnObject", 0, 3, -2),
    Sketcher.Constraint("Diameter", 0, Q("3 mm")),
    Sketcher.Constraint("DistanceY", -1, 1, 0, 3, Q("50 mm")),
])
pad18 = doc.addObject("PartDesign::Pad", "Pad017")
body24.addObject(pad18)
pad18.Profile = sketch18
pad18.Length = 50
body25 = doc.addObject("PartDesign::Body", "Body024")

sketch19 = doc.addObject("Sketcher::SketchObject", "Sketch018")
body25.addObject(sketch19)
sketch19.AttachmentSupport = (doc.getObject("XY_Plane024"), [""])
sketch19.MapMode = "FlatFace"
sketch19.addGeometry(Part.Circle(App.Vector(0, 0, 0), App.Vector(0, 0, 1), 1.5), False)
sketch19.addConstraint([
    Sketcher.Constraint("Coincident", 0, 3, -1, 1),
    Sketcher.Constraint("Diameter", 0, Q("3 mm")),
])
pad19 = doc.addObject("PartDesign::Pad", "Pad018")
body25.addObject(pad19)
pad19.Profile = sketch19
pad19.Length = 50
body26 = doc.addObject("PartDesign::Body", "Body025")
doc.recompute()

body25.Placement = App.Placement(App.Vector(-35.355339, 35.355339, -15), App.Rotation(App.Vector(0, 0, 1), 135))
boolean20 = doc.addObject("PartDesign::Boolean", "Boolean019")
body26.addObject(boolean20)
boolean20.Type = "Fuse"
boolean20.addObjects([body25])
body27 = doc.addObject("PartDesign::Body", "Body026")

sketch20 = doc.addObject("Sketcher::SketchObject", "Sketch019")
body27.addObject(sketch20)
sketch20.AttachmentSupport = (doc.getObject("XY_Plane026"), [""])
sketch20.MapMode = "FlatFace"
sketch20.AttachmentOffset = App.Placement(App.Vector(0, 0, -15), App.Rotation())
sketch20.addGeometry(Part.Circle(App.Vector(-50, 0, 0), App.Vector(0, 0, 1), 1.5), False)
sketch20.addConstraint([
    Sketcher.Constraint("PointOnObject", 0, 3, -1),
    Sketcher.Constraint("Diameter", 0, Q("3 mm")),
    Sketcher.Constraint("DistanceX", 0, 3, -1, 1, Q("50 mm")),
])
pad20 = doc.addObject("PartDesign::Pad", "Pad019")
body27.addObject(pad20)
pad20.Profile = sketch20
pad20.Length = 50
body28 = doc.addObject("PartDesign::Body", "Body027")

sketch21 = doc.addObject("Sketcher::SketchObject", "Sketch020")
body28.addObject(sketch21)
sketch21.AttachmentSupport = (doc.getObject("XY_Plane027"), [""])
sketch21.MapMode = "FlatFace"
sketch21.addGeometry(Part.Circle(App.Vector(0, 0, 0), App.Vector(0, 0, 1), 1.5), False)
sketch21.addConstraint([
    Sketcher.Constraint("Coincident", 0, 3, -1, 1),
    Sketcher.Constraint("Diameter", 0, Q("3 mm")),
])
pad21 = doc.addObject("PartDesign::Pad", "Pad020")
body28.addObject(pad21)
pad21.Profile = sketch21
pad21.Length = 50
body29 = doc.addObject("PartDesign::Body", "Body028")
doc.recompute()

body28.Placement = App.Placement(App.Vector(-35.355339, -35.355339, -15), App.Rotation(App.Vector(0, 0, 1), 225))
boolean21 = doc.addObject("PartDesign::Boolean", "Boolean020")
body29.addObject(boolean21)
boolean21.Type = "Fuse"
boolean21.addObjects([body28])
body30 = doc.addObject("PartDesign::Body", "Body029")

sketch22 = doc.addObject("Sketcher::SketchObject", "Sketch021")
body30.addObject(sketch22)
sketch22.AttachmentSupport = (doc.getObject("XY_Plane029"), [""])
sketch22.MapMode = "FlatFace"
sketch22.AttachmentOffset = App.Placement(App.Vector(0, 0, -15), App.Rotation())
sketch22.addGeometry(Part.Circle(App.Vector(0, -50, 0), App.Vector(0, 0, 1), 1.5), False)
sketch22.addConstraint([
    Sketcher.Constraint("PointOnObject", 0, 3, -2),
    Sketcher.Constraint("Diameter", 0, Q("3 mm")),
    Sketcher.Constraint("DistanceY", 0, 3, -1, 1, Q("50 mm")),
])
pad22 = doc.addObject("PartDesign::Pad", "Pad021")
body30.addObject(pad22)
pad22.Profile = sketch22
pad22.Length = 50
body31 = doc.addObject("PartDesign::Body", "Body030")

sketch23 = doc.addObject("Sketcher::SketchObject", "Sketch022")
body31.addObject(sketch23)
sketch23.AttachmentSupport = (doc.getObject("XY_Plane030"), [""])
sketch23.MapMode = "FlatFace"
sketch23.addGeometry(Part.Circle(App.Vector(0, 0, 0), App.Vector(0, 0, 1), 1.5), False)
sketch23.addConstraint([
    Sketcher.Constraint("Coincident", 0, 3, -1, 1),
    Sketcher.Constraint("Diameter", 0, Q("3 mm")),
])
pad23 = doc.addObject("PartDesign::Pad", "Pad022")
body31.addObject(pad23)
pad23.Profile = sketch23
pad23.Length = 50
body32 = doc.addObject("PartDesign::Body", "Body031")
doc.recompute()

body31.Placement = App.Placement(App.Vector(35.355339, -35.355339, -15), App.Rotation(App.Vector(0, 0, -1), 45))
boolean22 = doc.addObject("PartDesign::Boolean", "Boolean021")
body32.addObject(boolean22)
boolean22.Type = "Fuse"
boolean22.addObjects([body31])
body33 = doc.addObject("PartDesign::Body", "Body032")
body33.AllowCompound = True

sketch24 = doc.addObject("Sketcher::SketchObject", "Sketch023")
body33.addObject(sketch24)
sketch24.AttachmentSupport = (doc.getObject("XY_Plane032"), [""])
sketch24.MapMode = "FlatFace"
sketch24.AttachmentOffset = App.Placement(App.Vector(0, 0, -15), App.Rotation())
sketch24.addGeometry(Part.Circle(App.Vector(50, 0, 0), App.Vector(0, 0, 1), 1.5), False)
sketch24.addConstraint([
    Sketcher.Constraint("PointOnObject", 0, 3, -1),
    Sketcher.Constraint("Diameter", 0, Q("3 mm")),
    Sketcher.Constraint("DistanceX", -1, 1, 0, 3, Q("50 mm")),
])
pad24 = doc.addObject("PartDesign::Pad", "Pad023")
body33.addObject(pad24)
pad24.Profile = sketch24
pad24.Length = 50
doc.recompute()

boolean23 = doc.addObject("PartDesign::Boolean", "Boolean022")
body33.addObject(boolean23)
boolean23.Type = "Fuse"
boolean23.addObjects([body23])
doc.recompute()

boolean24 = doc.addObject("PartDesign::Boolean", "Boolean023")
body33.addObject(boolean24)
boolean24.Type = "Fuse"
boolean24.addObjects([body24])
doc.recompute()

boolean25 = doc.addObject("PartDesign::Boolean", "Boolean024")
body33.addObject(boolean25)
boolean25.Type = "Fuse"
boolean25.addObjects([body26])
doc.recompute()

boolean26 = doc.addObject("PartDesign::Boolean", "Boolean025")
body33.addObject(boolean26)
boolean26.Type = "Fuse"
boolean26.addObjects([body27])
doc.recompute()

boolean27 = doc.addObject("PartDesign::Boolean", "Boolean026")
body33.addObject(boolean27)
boolean27.Type = "Fuse"
boolean27.addObjects([body29])
doc.recompute()

boolean28 = doc.addObject("PartDesign::Boolean", "Boolean027")
body33.addObject(boolean28)
boolean28.Type = "Fuse"
boolean28.addObjects([body30])
doc.recompute()

boolean29 = doc.addObject("PartDesign::Boolean", "Boolean028")
body33.addObject(boolean29)
boolean29.Type = "Fuse"
boolean29.addObjects([body32])
body34 = doc.addObject("PartDesign::Body", "Body033")
body34.AllowCompound = True
doc.recompute()

body33.Placement = App.Placement(App.Vector(0, 0, -5), App.Rotation(App.Vector(0, 0, 1), 0))
boolean30 = doc.addObject("PartDesign::Boolean", "Boolean029")
body34.addObject(boolean30)
boolean30.Type = "Fuse"
boolean30.addObjects([body33])
body35 = doc.addObject("PartDesign::Body", "Body034")

sketch25 = doc.addObject("Sketcher::SketchObject", "Sketch024")
body35.addObject(sketch25)
sketch25.AttachmentSupport = (doc.getObject("XZ_Plane034"), [""])
sketch25.MapMode = "FlatFace"
sketch25.addGeometry(Part.Circle(App.Vector(46.2, 34, 0), App.Vector(0, 0, 1), 3.1), False)
sketch25.addConstraint([
    Sketcher.Constraint("Diameter", 0, Q("6.2 mm")),
    Sketcher.Constraint("DistanceY", -1, 1, 0, 3, Q("34 mm")),
    Sketcher.Constraint("DistanceX", -1, 1, 0, 3, Q("46.2 mm")),
])
revolution = doc.addObject("PartDesign::Revolution", "Revolution")
body35.addObject(revolution)
revolution.Profile = sketch25
revolution.ReferenceAxis = (sketch25, ["V_Axis"])
revolution.Angle = 360
body36 = doc.addObject("PartDesign::Body", "Body035")

sketch26 = doc.addObject("Sketcher::SketchObject", "Sketch025")
body36.addObject(sketch26)
sketch26.AttachmentSupport = (doc.getObject("XY_Plane035"), [""])
sketch26.MapMode = "FlatFace"
sketch26.AttachmentOffset = App.Placement(App.Vector(0, 0, 20), App.Rotation())
sketch26.addGeometry(Part.Circle(App.Vector(0, 0, 0), App.Vector(0, 0, 1), 47), False)
sketch26.addConstraint([
    Sketcher.Constraint("Coincident", 0, 3, -1, 1),
    Sketcher.Constraint("Diameter", 0, Q("94 mm")),
])
pad25 = doc.addObject("PartDesign::Pad", "Pad024")
body36.addObject(pad25)
pad25.Profile = sketch26
pad25.Length = 25
body37 = doc.addObject("PartDesign::Body", "Body036")
body37.AllowCompound = True

sketch27 = doc.addObject("Sketcher::SketchObject", "Sketch026")
body37.addObject(sketch27)
sketch27.AttachmentSupport = (doc.getObject("XY_Plane036"), [""])
sketch27.MapMode = "FlatFace"
sketch27.AttachmentOffset = App.Placement(App.Vector(0, 0, 20), App.Rotation())
add_polygon(sketch27, [(0, 54), (0, -54), (46, -54), (46, 54)])
sketch27.addConstraint([
    Sketcher.Constraint("Vertical", 0),
    Sketcher.Constraint("Horizontal", 1),
    Sketcher.Constraint("Vertical", 2),
    Sketcher.Constraint("Horizontal", 3),
    Sketcher.Constraint("Symmetric", 0, 2, 3, 2, -1, 1),
    Sketcher.Constraint("DistanceX", 1, 1, 1, 2, Q("46 mm")),
    Sketcher.Constraint("DistanceY", 0, 2, 0, 1, Q("108 mm")),
])
pad26 = doc.addObject("PartDesign::Pad", "Pad025")
body37.addObject(pad26)
pad26.Profile = sketch27
pad26.Length = 25
doc.recompute()

boolean31 = doc.addObject("PartDesign::Boolean", "Boolean030")
body37.addObject(boolean31)
boolean31.Type = "Cut"
boolean31.addObjects([body36])
doc.recompute()

boolean32 = doc.addObject("PartDesign::Boolean", "Boolean031")
body37.addObject(boolean32)
boolean32.Type = "Cut"
boolean32.addObjects([body35])
doc.recompute()

boolean33 = doc.addObject("PartDesign::Boolean", "Boolean032")
body37.addObject(boolean33)
boolean33.Type = "Cut"
boolean33.addObjects([body34])
doc.recompute()

boolean34 = doc.addObject("PartDesign::Boolean", "Boolean033")
body37.addObject(boolean34)
boolean34.Type = "Cut"
boolean34.addObjects([body21])
doc.recompute()

boolean35 = doc.addObject("PartDesign::Boolean", "Boolean034")
body37.addObject(boolean35)
boolean35.Type = "Cut"
boolean35.addObjects([body8])
doc.recompute()

boolean36 = doc.addObject("PartDesign::Boolean", "Boolean035")
body37.addObject(boolean36)
boolean36.Type = "Cut"
boolean36.addObjects([body4])

doc.recompute()
